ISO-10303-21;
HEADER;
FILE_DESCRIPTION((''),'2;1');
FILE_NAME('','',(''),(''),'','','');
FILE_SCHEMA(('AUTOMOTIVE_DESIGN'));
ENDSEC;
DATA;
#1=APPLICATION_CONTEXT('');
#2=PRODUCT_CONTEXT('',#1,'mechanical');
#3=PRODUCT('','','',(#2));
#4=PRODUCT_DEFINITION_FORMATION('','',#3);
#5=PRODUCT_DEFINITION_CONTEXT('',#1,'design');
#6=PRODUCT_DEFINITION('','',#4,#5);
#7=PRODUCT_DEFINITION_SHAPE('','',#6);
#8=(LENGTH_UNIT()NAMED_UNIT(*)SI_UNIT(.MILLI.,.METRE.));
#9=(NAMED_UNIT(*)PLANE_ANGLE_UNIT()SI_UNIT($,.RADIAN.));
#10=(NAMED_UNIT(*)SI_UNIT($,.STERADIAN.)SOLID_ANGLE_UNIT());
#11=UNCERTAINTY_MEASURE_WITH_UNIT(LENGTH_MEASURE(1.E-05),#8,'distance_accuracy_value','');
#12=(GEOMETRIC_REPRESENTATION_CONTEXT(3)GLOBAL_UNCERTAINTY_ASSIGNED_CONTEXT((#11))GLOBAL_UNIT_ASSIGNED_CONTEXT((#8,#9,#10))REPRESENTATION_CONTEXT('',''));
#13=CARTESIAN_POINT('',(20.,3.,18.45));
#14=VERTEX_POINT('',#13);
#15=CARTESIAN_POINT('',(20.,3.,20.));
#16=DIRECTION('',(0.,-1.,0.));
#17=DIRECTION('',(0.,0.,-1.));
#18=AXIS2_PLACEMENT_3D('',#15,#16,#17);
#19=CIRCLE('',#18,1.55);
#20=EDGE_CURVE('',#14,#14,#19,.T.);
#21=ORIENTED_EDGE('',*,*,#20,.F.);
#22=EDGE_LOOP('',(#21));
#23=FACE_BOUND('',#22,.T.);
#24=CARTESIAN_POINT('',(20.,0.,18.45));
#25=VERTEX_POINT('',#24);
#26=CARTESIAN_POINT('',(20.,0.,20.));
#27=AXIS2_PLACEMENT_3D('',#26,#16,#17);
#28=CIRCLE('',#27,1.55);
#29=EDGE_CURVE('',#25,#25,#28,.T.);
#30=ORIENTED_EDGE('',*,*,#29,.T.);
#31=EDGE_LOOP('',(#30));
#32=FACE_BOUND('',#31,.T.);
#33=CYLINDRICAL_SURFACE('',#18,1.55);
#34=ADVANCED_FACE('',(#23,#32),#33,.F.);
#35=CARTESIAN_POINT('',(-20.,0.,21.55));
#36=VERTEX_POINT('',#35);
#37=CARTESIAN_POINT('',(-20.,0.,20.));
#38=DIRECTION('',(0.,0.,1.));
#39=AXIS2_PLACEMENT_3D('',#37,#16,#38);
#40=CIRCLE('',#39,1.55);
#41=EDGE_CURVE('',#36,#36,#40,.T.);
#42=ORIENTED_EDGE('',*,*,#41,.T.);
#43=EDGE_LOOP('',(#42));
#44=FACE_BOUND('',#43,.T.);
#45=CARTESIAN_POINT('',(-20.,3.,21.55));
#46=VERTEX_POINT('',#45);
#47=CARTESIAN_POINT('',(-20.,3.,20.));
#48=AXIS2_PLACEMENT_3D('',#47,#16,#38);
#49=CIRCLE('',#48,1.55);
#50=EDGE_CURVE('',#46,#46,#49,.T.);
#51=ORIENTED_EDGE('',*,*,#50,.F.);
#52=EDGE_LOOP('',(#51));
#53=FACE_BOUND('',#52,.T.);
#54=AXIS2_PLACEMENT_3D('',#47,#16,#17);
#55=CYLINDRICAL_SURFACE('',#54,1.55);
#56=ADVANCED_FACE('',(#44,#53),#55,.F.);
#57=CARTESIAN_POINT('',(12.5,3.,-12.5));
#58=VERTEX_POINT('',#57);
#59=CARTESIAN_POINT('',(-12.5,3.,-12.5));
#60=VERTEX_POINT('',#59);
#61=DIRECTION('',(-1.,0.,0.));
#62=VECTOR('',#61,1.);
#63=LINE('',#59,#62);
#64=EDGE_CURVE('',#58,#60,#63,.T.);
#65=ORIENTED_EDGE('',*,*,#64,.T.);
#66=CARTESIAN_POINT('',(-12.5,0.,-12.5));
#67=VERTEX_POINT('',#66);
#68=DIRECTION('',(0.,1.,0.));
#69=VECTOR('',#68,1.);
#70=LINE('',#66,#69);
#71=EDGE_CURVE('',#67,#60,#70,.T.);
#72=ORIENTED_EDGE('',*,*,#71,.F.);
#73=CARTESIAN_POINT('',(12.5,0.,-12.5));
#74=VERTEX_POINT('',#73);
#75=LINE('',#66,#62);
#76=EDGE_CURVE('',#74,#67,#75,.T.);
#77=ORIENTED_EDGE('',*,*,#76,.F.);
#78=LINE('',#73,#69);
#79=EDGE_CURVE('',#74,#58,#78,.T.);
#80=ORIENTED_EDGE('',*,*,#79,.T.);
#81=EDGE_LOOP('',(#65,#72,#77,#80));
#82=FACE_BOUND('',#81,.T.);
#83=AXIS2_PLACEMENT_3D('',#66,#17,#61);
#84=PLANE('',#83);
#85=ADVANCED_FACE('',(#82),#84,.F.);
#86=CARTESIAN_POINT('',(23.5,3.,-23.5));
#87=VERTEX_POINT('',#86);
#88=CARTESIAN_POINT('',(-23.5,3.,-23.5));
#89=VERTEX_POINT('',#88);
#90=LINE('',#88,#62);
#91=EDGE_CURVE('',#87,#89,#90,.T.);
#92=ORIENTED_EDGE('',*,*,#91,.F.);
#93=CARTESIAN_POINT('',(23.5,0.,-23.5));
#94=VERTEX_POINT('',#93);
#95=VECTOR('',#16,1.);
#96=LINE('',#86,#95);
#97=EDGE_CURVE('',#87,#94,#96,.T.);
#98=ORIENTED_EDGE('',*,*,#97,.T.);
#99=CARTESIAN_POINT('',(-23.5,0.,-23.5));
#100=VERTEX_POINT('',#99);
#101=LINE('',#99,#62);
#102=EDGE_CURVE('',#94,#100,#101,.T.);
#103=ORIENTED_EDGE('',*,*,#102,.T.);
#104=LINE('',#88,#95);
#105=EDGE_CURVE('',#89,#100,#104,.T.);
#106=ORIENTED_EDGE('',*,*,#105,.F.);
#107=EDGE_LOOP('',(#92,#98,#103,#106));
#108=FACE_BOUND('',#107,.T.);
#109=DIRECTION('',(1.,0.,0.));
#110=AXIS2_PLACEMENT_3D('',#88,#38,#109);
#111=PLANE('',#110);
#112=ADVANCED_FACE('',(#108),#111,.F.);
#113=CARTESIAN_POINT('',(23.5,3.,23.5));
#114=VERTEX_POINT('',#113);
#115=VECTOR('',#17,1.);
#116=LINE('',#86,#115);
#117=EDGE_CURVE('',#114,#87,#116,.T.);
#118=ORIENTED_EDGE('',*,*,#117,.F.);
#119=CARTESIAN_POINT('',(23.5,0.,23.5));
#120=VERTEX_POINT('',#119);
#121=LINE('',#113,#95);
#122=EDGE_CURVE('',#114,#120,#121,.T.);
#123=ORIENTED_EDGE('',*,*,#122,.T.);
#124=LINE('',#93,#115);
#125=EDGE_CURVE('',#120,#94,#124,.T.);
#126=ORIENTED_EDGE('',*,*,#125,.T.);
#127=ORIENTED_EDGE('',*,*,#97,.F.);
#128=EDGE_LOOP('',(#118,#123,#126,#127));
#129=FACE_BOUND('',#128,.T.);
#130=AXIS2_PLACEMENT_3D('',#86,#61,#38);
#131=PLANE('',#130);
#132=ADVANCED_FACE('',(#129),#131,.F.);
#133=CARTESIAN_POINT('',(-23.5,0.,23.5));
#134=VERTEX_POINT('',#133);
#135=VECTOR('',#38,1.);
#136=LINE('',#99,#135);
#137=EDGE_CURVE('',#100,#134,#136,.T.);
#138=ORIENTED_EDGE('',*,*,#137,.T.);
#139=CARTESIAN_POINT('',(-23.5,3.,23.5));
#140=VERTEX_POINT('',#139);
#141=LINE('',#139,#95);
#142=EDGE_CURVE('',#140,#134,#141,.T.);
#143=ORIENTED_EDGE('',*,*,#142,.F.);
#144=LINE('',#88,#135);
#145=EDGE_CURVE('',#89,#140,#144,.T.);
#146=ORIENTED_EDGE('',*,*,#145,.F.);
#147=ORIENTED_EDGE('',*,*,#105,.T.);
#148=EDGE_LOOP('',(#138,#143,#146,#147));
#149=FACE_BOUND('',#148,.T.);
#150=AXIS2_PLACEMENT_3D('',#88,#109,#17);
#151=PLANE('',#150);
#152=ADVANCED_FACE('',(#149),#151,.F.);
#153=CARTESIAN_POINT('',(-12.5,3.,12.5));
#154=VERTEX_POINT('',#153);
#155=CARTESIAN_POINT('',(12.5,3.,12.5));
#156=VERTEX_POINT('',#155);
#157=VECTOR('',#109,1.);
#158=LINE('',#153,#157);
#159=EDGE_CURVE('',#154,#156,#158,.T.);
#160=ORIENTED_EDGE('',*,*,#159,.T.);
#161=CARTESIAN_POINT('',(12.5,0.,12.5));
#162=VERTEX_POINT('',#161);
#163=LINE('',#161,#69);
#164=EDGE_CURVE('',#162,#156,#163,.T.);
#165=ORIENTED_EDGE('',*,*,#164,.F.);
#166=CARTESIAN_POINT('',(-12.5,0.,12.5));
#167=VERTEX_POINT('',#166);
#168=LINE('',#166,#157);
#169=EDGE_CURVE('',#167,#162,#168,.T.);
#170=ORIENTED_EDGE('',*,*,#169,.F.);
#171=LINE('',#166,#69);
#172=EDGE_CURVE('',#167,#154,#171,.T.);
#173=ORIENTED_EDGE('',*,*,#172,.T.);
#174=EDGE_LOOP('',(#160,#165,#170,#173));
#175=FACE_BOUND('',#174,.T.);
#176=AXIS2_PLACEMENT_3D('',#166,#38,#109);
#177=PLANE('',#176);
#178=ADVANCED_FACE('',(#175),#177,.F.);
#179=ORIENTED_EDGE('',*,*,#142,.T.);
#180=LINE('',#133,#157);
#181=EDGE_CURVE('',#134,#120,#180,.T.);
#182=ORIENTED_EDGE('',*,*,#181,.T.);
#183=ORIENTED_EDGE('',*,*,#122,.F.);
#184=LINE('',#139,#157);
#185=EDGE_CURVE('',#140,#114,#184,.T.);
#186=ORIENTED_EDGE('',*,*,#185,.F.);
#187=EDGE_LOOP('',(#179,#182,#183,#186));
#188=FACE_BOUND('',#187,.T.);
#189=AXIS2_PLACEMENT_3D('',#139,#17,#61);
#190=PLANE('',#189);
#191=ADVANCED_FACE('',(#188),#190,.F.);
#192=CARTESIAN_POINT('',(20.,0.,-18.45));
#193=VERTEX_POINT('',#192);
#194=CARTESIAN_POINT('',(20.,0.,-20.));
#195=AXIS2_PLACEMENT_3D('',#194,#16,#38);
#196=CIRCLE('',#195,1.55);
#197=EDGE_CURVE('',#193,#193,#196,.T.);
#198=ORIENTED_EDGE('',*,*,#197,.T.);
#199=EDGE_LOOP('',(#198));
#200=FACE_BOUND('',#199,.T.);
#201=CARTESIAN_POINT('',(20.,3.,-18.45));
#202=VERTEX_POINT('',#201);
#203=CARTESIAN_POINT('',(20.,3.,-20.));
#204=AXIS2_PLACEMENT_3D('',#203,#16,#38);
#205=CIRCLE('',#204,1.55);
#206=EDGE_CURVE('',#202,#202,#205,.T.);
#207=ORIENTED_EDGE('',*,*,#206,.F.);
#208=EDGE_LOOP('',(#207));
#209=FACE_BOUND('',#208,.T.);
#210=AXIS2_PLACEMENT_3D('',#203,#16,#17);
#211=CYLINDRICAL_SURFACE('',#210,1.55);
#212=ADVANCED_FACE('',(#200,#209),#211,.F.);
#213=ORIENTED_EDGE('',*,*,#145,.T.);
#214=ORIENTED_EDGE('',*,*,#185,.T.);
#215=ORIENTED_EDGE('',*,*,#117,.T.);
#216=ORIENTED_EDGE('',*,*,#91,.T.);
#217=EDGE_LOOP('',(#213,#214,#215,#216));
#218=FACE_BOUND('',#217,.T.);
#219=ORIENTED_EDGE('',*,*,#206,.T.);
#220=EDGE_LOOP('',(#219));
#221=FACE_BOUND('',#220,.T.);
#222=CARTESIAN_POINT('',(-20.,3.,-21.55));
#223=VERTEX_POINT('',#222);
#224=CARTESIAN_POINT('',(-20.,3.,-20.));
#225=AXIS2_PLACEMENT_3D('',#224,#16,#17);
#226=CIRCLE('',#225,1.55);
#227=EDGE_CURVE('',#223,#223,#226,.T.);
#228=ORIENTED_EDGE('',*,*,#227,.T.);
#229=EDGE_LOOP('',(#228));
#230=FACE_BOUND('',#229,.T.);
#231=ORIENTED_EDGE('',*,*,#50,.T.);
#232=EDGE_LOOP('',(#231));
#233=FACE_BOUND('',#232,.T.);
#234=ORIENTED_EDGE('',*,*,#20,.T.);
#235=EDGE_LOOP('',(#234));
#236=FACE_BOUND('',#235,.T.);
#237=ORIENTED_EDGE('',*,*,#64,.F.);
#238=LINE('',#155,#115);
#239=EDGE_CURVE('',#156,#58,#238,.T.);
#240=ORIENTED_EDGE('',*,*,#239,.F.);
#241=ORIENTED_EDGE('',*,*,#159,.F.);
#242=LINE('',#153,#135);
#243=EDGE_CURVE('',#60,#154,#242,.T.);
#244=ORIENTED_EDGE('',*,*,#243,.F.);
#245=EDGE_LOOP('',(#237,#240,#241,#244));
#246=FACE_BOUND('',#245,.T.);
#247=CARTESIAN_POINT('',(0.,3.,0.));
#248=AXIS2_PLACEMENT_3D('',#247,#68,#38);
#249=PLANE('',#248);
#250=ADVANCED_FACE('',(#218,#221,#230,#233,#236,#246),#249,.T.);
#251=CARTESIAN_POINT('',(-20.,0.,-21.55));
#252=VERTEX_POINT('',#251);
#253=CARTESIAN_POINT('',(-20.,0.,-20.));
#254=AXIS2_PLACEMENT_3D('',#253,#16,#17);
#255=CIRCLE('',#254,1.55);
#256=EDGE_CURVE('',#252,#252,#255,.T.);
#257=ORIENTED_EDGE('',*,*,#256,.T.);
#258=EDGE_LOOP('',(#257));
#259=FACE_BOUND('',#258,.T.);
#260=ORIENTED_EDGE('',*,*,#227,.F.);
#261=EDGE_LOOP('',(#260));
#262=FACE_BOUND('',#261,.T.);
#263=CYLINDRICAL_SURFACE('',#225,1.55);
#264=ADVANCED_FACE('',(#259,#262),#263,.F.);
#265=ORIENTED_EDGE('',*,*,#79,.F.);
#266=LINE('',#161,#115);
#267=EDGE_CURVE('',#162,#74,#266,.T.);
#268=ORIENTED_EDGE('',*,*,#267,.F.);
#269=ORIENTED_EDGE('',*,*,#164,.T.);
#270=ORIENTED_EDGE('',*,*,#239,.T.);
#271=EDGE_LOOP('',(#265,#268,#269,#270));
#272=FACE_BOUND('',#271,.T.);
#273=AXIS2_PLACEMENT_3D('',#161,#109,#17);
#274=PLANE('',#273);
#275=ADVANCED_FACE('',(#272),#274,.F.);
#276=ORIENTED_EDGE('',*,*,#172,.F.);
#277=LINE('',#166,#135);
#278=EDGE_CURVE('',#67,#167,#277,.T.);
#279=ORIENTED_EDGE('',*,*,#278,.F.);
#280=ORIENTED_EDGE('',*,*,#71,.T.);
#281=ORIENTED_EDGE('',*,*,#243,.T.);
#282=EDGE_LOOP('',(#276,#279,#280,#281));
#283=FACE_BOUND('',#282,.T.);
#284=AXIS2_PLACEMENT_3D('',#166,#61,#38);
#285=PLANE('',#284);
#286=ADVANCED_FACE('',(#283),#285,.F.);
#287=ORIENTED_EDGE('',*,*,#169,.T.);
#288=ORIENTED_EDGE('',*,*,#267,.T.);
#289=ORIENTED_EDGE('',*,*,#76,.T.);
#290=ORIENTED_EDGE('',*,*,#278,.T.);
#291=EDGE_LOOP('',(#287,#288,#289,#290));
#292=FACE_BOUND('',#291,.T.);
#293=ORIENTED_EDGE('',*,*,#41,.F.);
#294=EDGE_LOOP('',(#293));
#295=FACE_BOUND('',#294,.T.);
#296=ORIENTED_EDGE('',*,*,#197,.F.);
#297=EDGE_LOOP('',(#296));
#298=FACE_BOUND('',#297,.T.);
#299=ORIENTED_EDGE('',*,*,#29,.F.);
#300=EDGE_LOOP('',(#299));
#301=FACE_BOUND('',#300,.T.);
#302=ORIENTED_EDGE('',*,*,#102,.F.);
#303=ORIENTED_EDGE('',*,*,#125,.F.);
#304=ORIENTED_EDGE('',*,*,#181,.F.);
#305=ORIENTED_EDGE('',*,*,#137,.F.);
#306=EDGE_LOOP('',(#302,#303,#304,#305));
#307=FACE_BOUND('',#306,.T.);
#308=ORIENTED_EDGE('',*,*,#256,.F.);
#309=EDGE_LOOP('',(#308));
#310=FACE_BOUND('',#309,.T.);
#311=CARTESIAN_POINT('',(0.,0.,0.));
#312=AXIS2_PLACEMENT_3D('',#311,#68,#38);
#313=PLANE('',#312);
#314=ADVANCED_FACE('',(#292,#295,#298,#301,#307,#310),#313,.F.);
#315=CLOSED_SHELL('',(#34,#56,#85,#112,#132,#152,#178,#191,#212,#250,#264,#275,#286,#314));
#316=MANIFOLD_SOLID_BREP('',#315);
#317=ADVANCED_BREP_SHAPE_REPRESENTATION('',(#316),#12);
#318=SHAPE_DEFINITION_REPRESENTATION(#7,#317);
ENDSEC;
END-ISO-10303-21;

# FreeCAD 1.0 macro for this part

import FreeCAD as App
import Part
import Sketcher
from FreeCAD import Vector


def add_polygon(sketch, points):
    """Adds a closed chain of lines whose ends are joined by coincident constraints."""
    first, n = sketch.GeometryCount, len(points)
    for a, b in zip(points, points[1:] + points[:1]):
        sketch.addGeometry(Part.LineSegment(App.Vector(*a, 0), App.Vector(*b, 0)), False)
    for i in range(n):
        sketch.addConstraint(Sketcher.Constraint("Coincident", first + i, 2, first + (i + 1) % n, 1))

doc = App.newDocument("Part")
body = doc.addObject("PartDesign::Body", "Body")

# Sketch on XZ plane
sketch1 = body.newObject("Sketcher::SketchObject", "Sketch")
sketch1.AttachmentSupport = (doc.getObject("XZ_Plane"), [""])
sketch1.MapMode = "FlatFace"
add_polygon(sketch1, [(-24, -24), (-24, 24), (24, 24), (24, -24)])  # lines 0-3
sketch1.addConstraint(Sketcher.Constraint("Vertical", 0))
sketch1.addConstraint(Sketcher.Constraint("Horizontal", 1))
sketch1.addConstraint(Sketcher.Constraint("Vertical", 2))
sketch1.addConstraint(Sketcher.Constraint("Horizontal", 3))
sketch1.addConstraint(Sketcher.Constraint("Symmetric", 0, 2, 2, 2, -1, 1))
sketch1.addConstraint(Sketcher.Constraint("Equal", 3, 0))
sketch1.addConstraint(Sketcher.Constraint("DistanceX", 1, 1, 1, 2, 47.0))
pad1 = body.newObject("PartDesign::Pad", "Pad")
pad1.Profile = sketch1
pad1.Length = 3
pad1.Reversed = True

# Sketch on XZ plane
sketch2 = body.newObject("Sketcher::SketchObject", "Sketch001")
sketch2.AttachmentSupport = (doc.getObject("XZ_Plane"), [""])
sketch2.MapMode = "FlatFace"
sketch2.AttachmentOffset = App.Placement(Vector(0, 0, -3), App.Rotation())
add_polygon(sketch2, [(-12, -12), (-12, 12), (12, 12), (12, -12)])  # lines 0-3
sketch2.addConstraint(Sketcher.Constraint("Vertical", 0))
sketch2.addConstraint(Sketcher.Constraint("Horizontal", 1))
sketch2.addConstraint(Sketcher.Constraint("Vertical", 2))
sketch2.addConstraint(Sketcher.Constraint("Horizontal", 3))
sketch2.addConstraint(Sketcher.Constraint("Symmetric", 0, 2, 2, 2, -1, 1))
sketch2.addConstraint(Sketcher.Constraint("Equal", 3, 0))
sketch2.addConstraint(Sketcher.Constraint("DistanceX", 1, 1, 1, 2, 25.0))
pocket1 = body.newObject("PartDesign::Pocket", "Pocket")
pocket1.Profile = sketch2
pocket1.Length = 3
pocket1.Reversed = True

# Sketch on XZ plane
sketch3 = body.newObject("Sketcher::SketchObject", "Sketch002")
sketch3.AttachmentSupport = (doc.getObject("XZ_Plane"), [""])
sketch3.MapMode = "FlatFace"
sketch3.addGeometry(Part.Circle(Vector(20, 20, 0), Vector(0, 0, 1), 1.6), False)
sketch3.addGeometry(Part.Circle(Vector(-20, 20, 0), Vector(0, 0, 1), 1.6), False)
sketch3.addGeometry(Part.Circle(Vector(20, -20, 0), Vector(0, 0, 1), 1.6), False)
sketch3.addGeometry(Part.Circle(Vector(-20, -20, 0), Vector(0, 0, 1), 1.6), False)
sketch3.addConstraint(Sketcher.Constraint("Equal", 0, 1))
sketch3.addConstraint(Sketcher.Constraint("Equal", 1, 2))
sketch3.addConstraint(Sketcher.Constraint("Equal", 2, 3))
sketch3.addConstraint(Sketcher.Constraint("Symmetric", 1, 3, 2, 3, -1, 1))
sketch3.addConstraint(Sketcher.Constraint("Symmetric", 0, 3, 3, 3, -1, 1))
sketch3.addConstraint(Sketcher.Constraint("Symmetric", 0, 3, 1, 3, -2))
sketch3.addConstraint(Sketcher.Constraint("Diameter", 0, 3.1))
sketch3.addConstraint(Sketcher.Constraint("DistanceX", -1, 1, 0, 3, 20.0))
sketch3.addConstraint(Sketcher.Constraint("DistanceY", -1, 1, 0, 3, 20.0))
pocket2 = body.newObject("PartDesign::Pocket", "Pocket001")
pocket2.Profile = sketch3
pocket2.Length = 3

doc.recompute()
